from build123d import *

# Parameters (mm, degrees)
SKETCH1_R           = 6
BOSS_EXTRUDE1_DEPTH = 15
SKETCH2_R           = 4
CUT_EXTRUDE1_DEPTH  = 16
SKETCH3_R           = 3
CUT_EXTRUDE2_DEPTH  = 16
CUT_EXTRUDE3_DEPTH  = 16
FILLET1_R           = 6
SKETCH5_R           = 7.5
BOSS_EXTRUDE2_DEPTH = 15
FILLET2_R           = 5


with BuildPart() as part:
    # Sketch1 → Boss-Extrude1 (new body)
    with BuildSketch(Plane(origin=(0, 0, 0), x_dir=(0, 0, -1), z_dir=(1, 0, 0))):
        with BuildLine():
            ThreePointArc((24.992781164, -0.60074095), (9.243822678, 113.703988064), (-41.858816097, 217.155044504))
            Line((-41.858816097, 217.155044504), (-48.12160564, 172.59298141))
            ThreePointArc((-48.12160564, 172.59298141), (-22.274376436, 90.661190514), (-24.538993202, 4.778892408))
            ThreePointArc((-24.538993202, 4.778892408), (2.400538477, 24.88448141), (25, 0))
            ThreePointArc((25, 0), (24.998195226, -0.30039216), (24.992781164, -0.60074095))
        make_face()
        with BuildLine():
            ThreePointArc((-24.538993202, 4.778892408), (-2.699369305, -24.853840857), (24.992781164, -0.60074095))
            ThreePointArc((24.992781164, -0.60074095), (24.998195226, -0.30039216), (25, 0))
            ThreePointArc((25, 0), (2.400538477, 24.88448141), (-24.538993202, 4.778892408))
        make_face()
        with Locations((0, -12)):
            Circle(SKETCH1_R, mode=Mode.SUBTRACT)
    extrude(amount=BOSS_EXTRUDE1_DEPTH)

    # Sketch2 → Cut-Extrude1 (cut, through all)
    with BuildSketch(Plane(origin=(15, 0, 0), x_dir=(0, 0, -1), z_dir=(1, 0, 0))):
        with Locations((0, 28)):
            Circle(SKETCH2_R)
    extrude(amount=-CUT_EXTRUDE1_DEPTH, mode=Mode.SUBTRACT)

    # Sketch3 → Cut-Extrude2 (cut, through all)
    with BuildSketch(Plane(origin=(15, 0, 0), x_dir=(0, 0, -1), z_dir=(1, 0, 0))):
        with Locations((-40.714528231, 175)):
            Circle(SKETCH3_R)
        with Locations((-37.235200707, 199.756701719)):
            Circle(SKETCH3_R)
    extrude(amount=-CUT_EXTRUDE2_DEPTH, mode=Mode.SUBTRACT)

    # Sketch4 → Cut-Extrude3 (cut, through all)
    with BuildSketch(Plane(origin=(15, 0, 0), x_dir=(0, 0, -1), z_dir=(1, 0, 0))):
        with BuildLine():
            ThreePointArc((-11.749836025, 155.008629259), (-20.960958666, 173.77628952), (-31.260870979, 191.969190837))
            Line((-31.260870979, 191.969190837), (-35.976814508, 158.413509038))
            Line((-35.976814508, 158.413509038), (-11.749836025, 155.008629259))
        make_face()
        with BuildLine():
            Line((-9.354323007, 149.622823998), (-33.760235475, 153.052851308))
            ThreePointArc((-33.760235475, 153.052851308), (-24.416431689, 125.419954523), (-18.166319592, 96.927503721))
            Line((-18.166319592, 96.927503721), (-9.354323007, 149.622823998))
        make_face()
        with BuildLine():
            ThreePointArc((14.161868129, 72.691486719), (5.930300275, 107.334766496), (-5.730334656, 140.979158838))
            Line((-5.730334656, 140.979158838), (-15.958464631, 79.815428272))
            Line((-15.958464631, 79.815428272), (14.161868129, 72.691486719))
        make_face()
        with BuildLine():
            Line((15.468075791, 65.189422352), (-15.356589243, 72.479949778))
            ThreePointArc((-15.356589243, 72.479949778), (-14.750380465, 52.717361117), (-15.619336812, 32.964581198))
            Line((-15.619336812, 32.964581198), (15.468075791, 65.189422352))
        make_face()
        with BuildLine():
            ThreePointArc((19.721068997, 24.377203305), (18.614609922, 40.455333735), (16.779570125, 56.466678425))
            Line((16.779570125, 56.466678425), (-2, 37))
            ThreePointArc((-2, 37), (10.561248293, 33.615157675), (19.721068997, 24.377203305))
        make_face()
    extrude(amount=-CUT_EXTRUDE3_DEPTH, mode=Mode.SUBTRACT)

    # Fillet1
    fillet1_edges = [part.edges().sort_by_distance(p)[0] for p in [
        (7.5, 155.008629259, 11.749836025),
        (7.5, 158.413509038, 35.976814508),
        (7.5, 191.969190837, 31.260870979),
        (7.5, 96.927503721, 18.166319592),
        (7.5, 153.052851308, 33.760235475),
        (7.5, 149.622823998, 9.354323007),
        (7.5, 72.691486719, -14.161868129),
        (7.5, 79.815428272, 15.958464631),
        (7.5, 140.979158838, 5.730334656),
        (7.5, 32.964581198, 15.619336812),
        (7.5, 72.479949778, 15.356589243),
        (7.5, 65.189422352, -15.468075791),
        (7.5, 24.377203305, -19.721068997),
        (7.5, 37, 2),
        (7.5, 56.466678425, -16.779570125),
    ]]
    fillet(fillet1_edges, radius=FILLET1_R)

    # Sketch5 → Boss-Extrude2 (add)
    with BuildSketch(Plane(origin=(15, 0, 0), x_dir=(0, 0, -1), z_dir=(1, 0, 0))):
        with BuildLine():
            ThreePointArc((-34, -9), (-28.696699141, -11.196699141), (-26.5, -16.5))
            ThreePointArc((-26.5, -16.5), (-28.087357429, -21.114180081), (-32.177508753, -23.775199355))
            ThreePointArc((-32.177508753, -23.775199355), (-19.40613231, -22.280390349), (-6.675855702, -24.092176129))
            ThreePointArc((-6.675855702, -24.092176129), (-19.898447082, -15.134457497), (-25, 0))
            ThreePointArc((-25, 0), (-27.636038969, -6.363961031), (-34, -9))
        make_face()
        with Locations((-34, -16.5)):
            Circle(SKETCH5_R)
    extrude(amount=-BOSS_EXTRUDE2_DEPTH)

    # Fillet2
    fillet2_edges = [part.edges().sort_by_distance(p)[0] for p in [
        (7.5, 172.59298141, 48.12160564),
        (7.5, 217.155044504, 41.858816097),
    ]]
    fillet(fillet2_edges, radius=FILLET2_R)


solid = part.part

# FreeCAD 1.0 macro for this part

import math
import FreeCAD as App
import Part
import Sketcher

V = App.Vector
Q = App.Units.Quantity


def edges_at(feature, points):
    """Names of the edges that pass closest to the given points."""
    edges = feature.Shape.Edges
    near = lambda p: min(range(len(edges)), key=lambda i: edges[i].distToShape(Part.Vertex(*p))[0])
    return sorted({f"Edge{near(p) + 1}" for p in points})

doc = App.newDocument("Part")
body = doc.addObject("PartDesign::Body", "Body")

# Sketch on YZ plane
sketch1 = body.newObject("Sketcher::SketchObject", "Sketch")
sketch1.AttachmentSupport = (doc.getObject("YZ_Plane"), [""])
sketch1.MapMode = "FlatFace"
sketch1.addGeometry(Part.ArcOfCircle(Part.Circle(V(8.049929, 334.903268, 0), V(0, 0, 1), 360), math.radians(-91.376929), math.radians(-54.489824)), False)
sketch1.addGeometry(Part.LineSegment(V(217.155045, 41.858816, 0), V(172.592981, 48.121606, 0)), False)
sketch1.addGeometry(Part.ArcOfCircle(Part.Circle(V(54.479373, 279.744522, 0), V(0, 0, 1), 260), math.radians(-101.020237), math.radians(-62.981182)), False)
sketch1.addGeometry(Part.ArcOfCircle(Part.Circle(V(0, 0, 0), V(0, 0, 1), 25), math.radians(78.979763), math.radians(268.623071)), False)
sketch1.addGeometry(Part.Circle(V(-12, 0, 0), V(0, 0, 1), 6), False)
sketch1.addConstraint(Sketcher.Constraint("Coincident", 0, 2, 1, 1))
sketch1.addConstraint(Sketcher.Constraint("Coincident", 1, 2, 2, 2))
sketch1.addConstraint(Sketcher.Constraint("Tangent", 2, 1, 3, 1))
sketch1.addConstraint(Sketcher.Constraint("Tangent", 3, 2, 0, 1))
sketch1.addConstraint(Sketcher.Constraint("Coincident", 3, 3, -1, 1))
sketch1.addConstraint(Sketcher.Constraint("PointOnObject", 4, 3, -1))
sketch1.addConstraint(Sketcher.Constraint("Diameter", 4, 12.0))
sketch1.addConstraint(Sketcher.Constraint("Radius", 0, 360.0))
sketch1.addConstraint(Sketcher.Constraint("Radius", 2, 260.0))
sketch1.addConstraint(Sketcher.Constraint("Radius", 3, 25.0))
sketch1.addConstraint(Sketcher.Constraint("Angle", 1, Q("172 deg")))
sketch1.addConstraint(Sketcher.Constraint("Distance", 1, 45.0))
sketch1.addConstraint(Sketcher.Constraint("DistanceX", 4, 3, -1, 1, 12.0))
sketch1.addConstraint(Sketcher.Constraint("DistanceX", -1, 1, 0, 3, 8.049929))
sketch1.addConstraint(Sketcher.Constraint("DistanceX", -1, 1, 1, 2, 172.592981))
pad1 = body.newObject("PartDesign::Pad", "Pad")
pad1.Profile = sketch1
pad1.Length = 15

# Sketch on YZ plane
sketch2 = body.newObject("Sketcher::SketchObject", "Sketch001")
sketch2.AttachmentSupport = (doc.getObject("YZ_Plane"), [""])
sketch2.MapMode = "FlatFace"
sketch2.AttachmentOffset = App.Placement(V(0, 0, 15), App.Rotation())
sketch2.addGeometry(Part.Circle(V(28, 0, 0), V(0, 0, 1), 4), False)
sketch2.addConstraint(Sketcher.Constraint("PointOnObject", 0, 3, -1))
sketch2.addConstraint(Sketcher.Constraint("Diameter", 0, 8.0))
sketch2.addConstraint(Sketcher.Constraint("DistanceX", -1, 1, 0, 3, 28.0))
pocket1 = body.newObject("PartDesign::Pocket", "Pocket")
pocket1.Profile = sketch2
pocket1.Type = "ThroughAll"

# Sketch on YZ plane
sketch3 = body.newObject("Sketcher::SketchObject", "Sketch002")
sketch3.AttachmentSupport = (doc.getObject("YZ_Plane"), [""])
sketch3.MapMode = "FlatFace"
sketch3.AttachmentOffset = App.Placement(V(0, 0, 15), App.Rotation())
sketch3.addGeometry(Part.Circle(V(175, 40.714528, 0), V(0, 0, 1), 3), False)
sketch3.addGeometry(Part.Circle(V(199.756702, 37.235201, 0), V(0, 0, 1), 3), False)
sketch3.addConstraint(Sketcher.Constraint("Equal", 0, 1))
sketch3.addConstraint(Sketcher.Constraint("Diameter", 0, 6.0))
sketch3.addConstraint(Sketcher.Constraint("DistanceX", -1, 1, 0, 3, 175.0))
sketch3.addConstraint(Sketcher.Constraint("DistanceX", -1, 1, 1, 3, 199.756702))
sketch3.addConstraint(Sketcher.Constraint("DistanceY", -1, 1, 1, 3, 37.235201))
sketch3.addConstraint(Sketcher.Constraint("DistanceY", -1, 1, 0, 3, 40.714528))
pocket2 = body.newObject("PartDesign::Pocket", "Pocket001")
pocket2.Profile = sketch3
pocket2.Type = "ThroughAll"

# Sketch on YZ plane
sketch4 = body.newObject("Sketcher::SketchObject", "Sketch003")
sketch4.AttachmentSupport = (doc.getObject("YZ_Plane"), [""])
sketch4.MapMode = "FlatFace"
sketch4.AttachmentOffset = App.Placement(V(0, 0, 15), App.Rotation())
sketch4.addGeometry(Part.ArcOfCircle(Part.Circle(V(8.049929, 334.903268, 0), V(0, 0, 1), 355), math.radians(-65.545646), math.radians(-58.796288)), False)
sketch4.addGeometry(Part.LineSegment(V(191.969191, 31.260871, 0), V(158.413509, 35.976815, 0)), False)
sketch4.addGeometry(Part.LineSegment(V(158.413509, 35.976815, 0), V(155.008629, 11.749836, 0)), False)
sketch4.addGeometry(Part.LineSegment(V(149.622824, 9.354323, 0), V(153.052851, 33.760235, 0)), False)
sketch4.addGeometry(Part.ArcOfCircle(Part.Circle(V(54.479373, 279.744522, 0), V(0, 0, 1), 265), math.radians(-80.782562), math.radians(-68.162504)), False)
sketch4.addGeometry(Part.LineSegment(V(96.927504, 18.16632, 0), V(149.622824, 9.354323, 0)), False)
sketch4.addGeometry(Part.ArcOfCircle(Part.Circle(V(8.049929, 334.903268, 0), V(0, 0, 1), 355), math.radians(-79.508544), math.radians(-68.009767)), False)
sketch4.addGeometry(Part.LineSegment(V(140.979159, 5.730335, 0), V(79.815428, 15.958465, 0)), False)
sketch4.addGeometry(Part.LineSegment(V(79.815428, 15.958465, 0), V(72.691487, -14.161868, 0)), False)
sketch4.addGeometry(Part.LineSegment(V(65.189422, -15.468076, 0), V(72.47995, 15.356589, 0)), False)
sketch4.addGeometry(Part.ArcOfCircle(Part.Circle(V(54.479373, 279.744522, 0), V(0, 0, 1), 265), math.radians(-94.656849), math.radians(-86.105087)), False)
sketch4.addGeometry(Part.LineSegment(V(32.964581, 15.619337, 0), V(65.189422, -15.468076, 0)), False)
sketch4.addGeometry(Part.ArcOfCircle(Part.Circle(V(8.049929, 334.903268, 0), V(0, 0, 1), 355.000001), math.radians(-87.363904), math.radians(-82.161272)), False)
sketch4.addGeometry(Part.LineSegment(V(56.466678, -16.77957, 0), V(37, 2, 0)), False)
sketch4.addGeometry(Part.ArcOfCircle(Part.Circle(V(12, 2, 0), V(0, 0, 1), 25), math.radians(-60.324438), math.radians(0)), False)
sketch4.addConstraint(Sketcher.Constraint("Coincident", 0, 2, 1, 1))
sketch4.addConstraint(Sketcher.Constraint("Coincident", 1, 2, 2, 1))
sketch4.addConstraint(Sketcher.Constraint("Coincident", 2, 2, 0, 1))
sketch4.addConstraint(Sketcher.Constraint("Coincident", 3, 2, 4, 2))
sketch4.addConstraint(Sketcher.Constraint("Coincident", 4, 1, 5, 1))
sketch4.addConstraint(Sketcher.Constraint("Coincident", 5, 2, 3, 1))
sketch4.addConstraint(Sketcher.Constraint("Coincident", 6, 2, 7, 1))
sketch4.addConstraint(Sketcher.Constraint("Coincident", 7, 2, 8, 1))
sketch4.addConstraint(Sketcher.Constraint("Coincident", 8, 2, 6, 1))
sketch4.addConstraint(Sketcher.Constraint("Coincident", 9, 2, 10, 2))
sketch4.addConstraint(Sketcher.Constraint("Coincident", 10, 1, 11, 1))
sketch4.addConstraint(Sketcher.Constraint("Coincident", 11, 2, 9, 1))
sketch4.addConstraint(Sketcher.Constraint("Coincident", 12, 2, 13, 1))
sketch4.addConstraint(Sketcher.Constraint("Coincident", 13, 2, 14, 2))
sketch4.addConstraint(Sketcher.Constraint("Coincident", 14, 1, 12, 1))
sketch4.addConstraint(Sketcher.Constraint("Coincident", 6, 3, 0, 3))
sketch4.addConstraint(Sketcher.Constraint("Coincident", 10, 3, 4, 3))
sketch4.addConstraint(Sketcher.Constraint("Coincident", 12, 3, 0, 3))
sketch4.addConstraint(Sketcher.Constraint("Equal", 0, 6))
sketch4.addConstraint(Sketcher.Constraint("Equal", 4, 10))
sketch4.addConstraint(Sketcher.Constraint("Equal", 6, 12))
sketch4.addConstraint(Sketcher.Constraint("Perpendicular", 1, 2))
sketch4.addConstraint(Sketcher.Constraint("Parallel", 2, 3))
sketch4.addConstraint(Sketcher.Constraint("Parallel", 5, 7))
sketch4.addConstraint(Sketcher.Constraint("Parallel", 8, 9))
sketch4.addConstraint(Sketcher.Constraint("Parallel", 11, 13))
sketch4.addConstraint(Sketcher.Constraint("Horizontal", 14, 3, 13, 2))
sketch4.addConstraint(Sketcher.Constraint("Radius", 0, 355.0))
sketch4.addConstraint(Sketcher.Constraint("Radius", 4, 265.0))
sketch4.addConstraint(Sketcher.Constraint("Radius", 14, 25.0))
sketch4.addConstraint(Sketcher.Constraint("Angle", 1, Q("172 deg")))
sketch4.addConstraint(Sketcher.Constraint("DistanceX", -1, 1, 14, 3, 12.0))
sketch4.addConstraint(Sketcher.Constraint("DistanceY", -1, 1, 14, 3, 2.0))
sketch4.addConstraint(Sketcher.Constraint("DistanceY", 2, 2, 3, 2, 22.010399))
sketch4.addConstraint(Sketcher.Constraint("DistanceY", 6, 2, 2, 2, 6.019501))
sketch4.addConstraint(Sketcher.Constraint("DistanceX", 7, 2, 2, 2, 75.193201))
sketch4.addConstraint(Sketcher.Constraint("DistanceY", 12, 2, 8, 2, 2.617702))
sketch4.addConstraint(Sketcher.Constraint("DistanceY", 14, 1, 12, 2, 2.941499))
sketch4.addConstraint(Sketcher.Constraint("Distance", 2, 24.465071))
sketch4.addConstraint(Sketcher.Constraint("Distance", 11, 44.775748))
sketch4.addConstraint(Sketcher.Constraint("DistanceX", -1, 1, 0, 3, 8.049929))
sketch4.addConstraint(Sketcher.Constraint("DistanceY", -1, 1, 12, 3, 334.903268))
sketch4.addConstraint(Sketcher.Constraint("DistanceX", -1, 1, 1, 2, 158.413509))
sketch4.addConstraint(Sketcher.Constraint("DistanceX", -1, 1, 3, 2, 153.052851))
sketch4.addConstraint(Sketcher.Constraint("DistanceY", -1, 1, 4, 1, 18.16632))
sketch4.addConstraint(Sketcher.Constraint("DistanceX", -1, 1, 9, 2, 72.47995))
sketch4.addConstraint(Sketcher.Constraint("DistanceY", -1, 1, 9, 2, 15.356589))
sketch4.addConstraint(Sketcher.Constraint("DistanceY", 5, 2, 1, 2, 26.622492))
pocket3 = body.newObject("PartDesign::Pocket", "Pocket002")
pocket3.Profile = sketch4
pocket3.Type = "ThroughAll"
doc.recompute()

fillet = body.newObject("PartDesign::Fillet", "Fillet")
fillet.Base = (pocket3, edges_at(pocket3, [
    (7.5, 155.009, 11.75),
    (7.5, 158.414, 35.977),
    (7.5, 191.969, 31.261),
    (7.5, 96.928, 18.166),
    (7.5, 153.053, 33.76),
    (7.5, 149.623, 9.354),
    (7.5, 72.691, -14.162),
    (7.5, 79.815, 15.958),
    (7.5, 140.979, 5.73),
    (7.5, 32.965, 15.619),
    (7.5, 72.48, 15.357),
    (7.5, 65.189, -15.468),
    (7.5, 24.377, -19.721),
    (7.5, 37, 2),
    (7.5, 56.467, -16.78),
]))
fillet.Radius = 6

# Sketch on YZ plane
sketch5 = body.newObject("Sketcher::SketchObject", "Sketch004")
sketch5.AttachmentSupport = (doc.getObject("YZ_Plane"), [""])
sketch5.MapMode = "FlatFace"
sketch5.AttachmentOffset = App.Placement(V(0, 0, 15), App.Rotation())
sketch5.addGeometry(Part.ArcOfCircle(Part.Circle(V(-72.276528, 20.027567, 0), V(0, 0, 1), 50), math.radians(-15.487862), math.radians(14.063602)), False)
sketch5.addGeometry(Part.ArcOfCircle(Part.Circle(V(0, 0, 0), V(0, 0, 1), 25), math.radians(90), math.radians(164.512138)), False)
sketch5.addGeometry(Part.ArcOfCircle(Part.Circle(V(0, 34, 0), V(0, 0, 1), 9), math.radians(180), math.radians(270)), False)
sketch5.addGeometry(Part.ArcOfCircle(Part.Circle(V(-16.5, 34, 0), V(0, 0, 1), 7.5), math.radians(0), math.radians(194.063602)), False)
sketch5.addConstraint(Sketcher.Constraint("Tangent", 0, 1, 1, 2))
sketch5.addConstraint(Sketcher.Constraint("Tangent", 1, 1, 2, 2))
sketch5.addConstraint(Sketcher.Constraint("Tangent", 2, 1, 3, 1))
sketch5.addConstraint(Sketcher.Constraint("Tangent", 3, 2, 0, 2))
sketch5.addConstraint(Sketcher.Constraint("Coincident", 1, 3, -1, 1))
sketch5.addConstraint(Sketcher.Constraint("PointOnObject", 2, 3, -2))
sketch5.addConstraint(Sketcher.Constraint("Horizontal", 2, 3, 3, 3))
sketch5.addConstraint(Sketcher.Constraint("Radius", 0, 50.0))
sketch5.addConstraint(Sketcher.Constraint("Radius", 1, 25.0))
sketch5.addConstraint(Sketcher.Constraint("Radius", 2, 9.0))
sketch5.addConstraint(Sketcher.Constraint("Radius", 3, 7.5))
pad2 = body.newObject("PartDesign::Pad", "Pad001")
pad2.Profile = sketch5
pad2.Length = 15
pad2.Reversed = True
doc.recompute()

fillet2 = body.newObject("PartDesign::Fillet", "Fillet001")
fillet2.Base = (pad2, edges_at(pad2, [(7.5, 172.593, 48.122), (7.5, 217.155, 41.859)]))
fillet2.Radius = 5

doc.recompute()
